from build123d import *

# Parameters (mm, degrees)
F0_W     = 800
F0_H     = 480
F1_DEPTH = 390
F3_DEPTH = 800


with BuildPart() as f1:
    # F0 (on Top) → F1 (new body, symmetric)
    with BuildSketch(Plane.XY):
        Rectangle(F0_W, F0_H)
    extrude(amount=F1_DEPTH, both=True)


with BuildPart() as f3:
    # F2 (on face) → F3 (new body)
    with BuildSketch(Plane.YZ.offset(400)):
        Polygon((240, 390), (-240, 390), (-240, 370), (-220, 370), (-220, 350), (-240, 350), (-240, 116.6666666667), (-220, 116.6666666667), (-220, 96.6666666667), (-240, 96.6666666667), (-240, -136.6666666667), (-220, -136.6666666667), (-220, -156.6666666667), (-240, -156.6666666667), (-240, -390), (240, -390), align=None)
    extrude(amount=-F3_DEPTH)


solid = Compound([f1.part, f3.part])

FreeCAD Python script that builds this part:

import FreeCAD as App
import Part
import Sketcher

V = App.Vector


def add_polygon(sketch, points):
    """Adds a closed chain of lines whose ends are joined by coincident constraints."""
    first, n = sketch.GeometryCount, len(points)
    for a, b in zip(points, points[1:] + points[:1]):
        sketch.addGeometry(Part.LineSegment(App.Vector(*a, 0), App.Vector(*b, 0)), False)
    for i in range(n):
        sketch.addConstraint(Sketcher.Constraint("Coincident", first + i, 2, first + (i + 1) % n, 1))

doc = App.newDocument("Part")
body = doc.addObject("PartDesign::Body", "Body")

sketch1 = body.newObject("Sketcher::SketchObject", "Sketch")
sketch1.AttachmentSupport = (doc.getObject("XY_Plane"), [""])
sketch1.MapMode = "FlatFace"
add_polygon(sketch1, [(-400, 240), (-400, -240), (400, -240), (400, 240)])
sketch1.addConstraint(Sketcher.Constraint("Vertical", 0))
sketch1.addConstraint(Sketcher.Constraint("Horizontal", 1))
sketch1.addConstraint(Sketcher.Constraint("Vertical", 2))
sketch1.addConstraint(Sketcher.Constraint("Horizontal", 3))
sketch1.addConstraint(Sketcher.Constraint("Symmetric", 0, 2, 2, 2, -1, 1))
sketch1.addConstraint(Sketcher.Constraint("DistanceX", 1, 1, 1, 2, 800.0))
sketch1.addConstraint(Sketcher.Constraint("DistanceY", 0, 2, 0, 1, 480.0))
pad1 = body.newObject("PartDesign::Pad", "Pad")
pad1.Profile = sketch1
pad1.Length = 780
pad1.Midplane = True
body2 = doc.addObject("PartDesign::Body", "Body001")

sketch2 = body2.newObject("Sketcher::SketchObject", "Sketch001")
sketch2.AttachmentSupport = (doc.getObject("YZ_Plane001"), [""])
sketch2.MapMode = "FlatFace"
sketch2.AttachmentOffset = App.Placement(V(0, 0, 400), App.Rotation())
add_polygon(sketch2, [(240, 390), (-240, 390), (-240, 370), (-220, 370), (-220, 350), (-240, 350), (-240, 116.666667), (-220, 116.666667), (-220, 96.666667), (-240, 96.666667), (-240, -136.666667), (-220, -136.666667), (-220, -156.666667), (-240, -156.666667), (-240, -390), (240, -390)])
sketch2.addConstraint(Sketcher.Constraint("Horizontal", 0))
sketch2.addConstraint(Sketcher.Constraint("Vertical", 1))
sketch2.addConstraint(Sketcher.Constraint("Horizontal", 2))
sketch2.addConstraint(Sketcher.Constraint("Vertical", 3))
sketch2.addConstraint(Sketcher.Constraint("Horizontal", 4))
sketch2.addConstraint(Sketcher.Constraint("Vertical", 5))
sketch2.addConstraint(Sketcher.Constraint("Horizontal", 6))
sketch2.addConstraint(Sketcher.Constraint("Vertical", 7))
sketch2.addConstraint(Sketcher.Constraint("Horizontal", 8))
sketch2.addConstraint(Sketcher.Constraint("Vertical", 9))
sketch2.addConstraint(Sketcher.Constraint("Horizontal", 10))
sketch2.addConstraint(Sketcher.Constraint("Vertical", 11))
sketch2.addConstraint(Sketcher.Constraint("Horizontal", 12))
sketch2.addConstraint(Sketcher.Constraint("Vertical", 13))
sketch2.addConstraint(Sketcher.Constraint("Horizontal", 14))
sketch2.addConstraint(Sketcher.Constraint("Vertical", 15))
sketch2.addConstraint(Sketcher.Constraint("Symmetric", 0, 2, 14, 2, -1, 1))
sketch2.addConstraint(Sketcher.Constraint("Vertical", 1, 2, 4, 2))
sketch2.addConstraint(Sketcher.Constraint("Vertical", 3, 2, 6, 2))
sketch2.addConstraint(Sketcher.Constraint("Vertical", 5, 2, 8, 2))
sketch2.addConstraint(Sketcher.Constraint("Vertical", 7, 2, 10, 2))
sketch2.addConstraint(Sketcher.Constraint("Vertical", 9, 2, 12, 2))
sketch2.addConstraint(Sketcher.Constraint("Equal", 12, 1))
sketch2.addConstraint(Sketcher.Constraint("Equal", 1, 3))
sketch2.addConstraint(Sketcher.Constraint("Equal", 3, 7))
sketch2.addConstraint(Sketcher.Constraint("Equal", 5, 9))
sketch2.addConstraint(Sketcher.Constraint("Equal", 7, 11))
sketch2.addConstraint(Sketcher.Constraint("Equal", 9, 13))
sketch2.addConstraint(Sketcher.Constraint("DistanceX", 0, 2, 0, 1, 480.0))
sketch2.addConstraint(Sketcher.Constraint("DistanceX", 2, 1, 2, 2, 20.0))
sketch2.addConstraint(Sketcher.Constraint("DistanceY", 15, 1, 15, 2, 780.0))
pad2 = body2.newObject("PartDesign::Pad", "Pad001")
pad2.Profile = sketch2
pad2.Length = 800
pad2.Reversed = True

doc.recompute()
